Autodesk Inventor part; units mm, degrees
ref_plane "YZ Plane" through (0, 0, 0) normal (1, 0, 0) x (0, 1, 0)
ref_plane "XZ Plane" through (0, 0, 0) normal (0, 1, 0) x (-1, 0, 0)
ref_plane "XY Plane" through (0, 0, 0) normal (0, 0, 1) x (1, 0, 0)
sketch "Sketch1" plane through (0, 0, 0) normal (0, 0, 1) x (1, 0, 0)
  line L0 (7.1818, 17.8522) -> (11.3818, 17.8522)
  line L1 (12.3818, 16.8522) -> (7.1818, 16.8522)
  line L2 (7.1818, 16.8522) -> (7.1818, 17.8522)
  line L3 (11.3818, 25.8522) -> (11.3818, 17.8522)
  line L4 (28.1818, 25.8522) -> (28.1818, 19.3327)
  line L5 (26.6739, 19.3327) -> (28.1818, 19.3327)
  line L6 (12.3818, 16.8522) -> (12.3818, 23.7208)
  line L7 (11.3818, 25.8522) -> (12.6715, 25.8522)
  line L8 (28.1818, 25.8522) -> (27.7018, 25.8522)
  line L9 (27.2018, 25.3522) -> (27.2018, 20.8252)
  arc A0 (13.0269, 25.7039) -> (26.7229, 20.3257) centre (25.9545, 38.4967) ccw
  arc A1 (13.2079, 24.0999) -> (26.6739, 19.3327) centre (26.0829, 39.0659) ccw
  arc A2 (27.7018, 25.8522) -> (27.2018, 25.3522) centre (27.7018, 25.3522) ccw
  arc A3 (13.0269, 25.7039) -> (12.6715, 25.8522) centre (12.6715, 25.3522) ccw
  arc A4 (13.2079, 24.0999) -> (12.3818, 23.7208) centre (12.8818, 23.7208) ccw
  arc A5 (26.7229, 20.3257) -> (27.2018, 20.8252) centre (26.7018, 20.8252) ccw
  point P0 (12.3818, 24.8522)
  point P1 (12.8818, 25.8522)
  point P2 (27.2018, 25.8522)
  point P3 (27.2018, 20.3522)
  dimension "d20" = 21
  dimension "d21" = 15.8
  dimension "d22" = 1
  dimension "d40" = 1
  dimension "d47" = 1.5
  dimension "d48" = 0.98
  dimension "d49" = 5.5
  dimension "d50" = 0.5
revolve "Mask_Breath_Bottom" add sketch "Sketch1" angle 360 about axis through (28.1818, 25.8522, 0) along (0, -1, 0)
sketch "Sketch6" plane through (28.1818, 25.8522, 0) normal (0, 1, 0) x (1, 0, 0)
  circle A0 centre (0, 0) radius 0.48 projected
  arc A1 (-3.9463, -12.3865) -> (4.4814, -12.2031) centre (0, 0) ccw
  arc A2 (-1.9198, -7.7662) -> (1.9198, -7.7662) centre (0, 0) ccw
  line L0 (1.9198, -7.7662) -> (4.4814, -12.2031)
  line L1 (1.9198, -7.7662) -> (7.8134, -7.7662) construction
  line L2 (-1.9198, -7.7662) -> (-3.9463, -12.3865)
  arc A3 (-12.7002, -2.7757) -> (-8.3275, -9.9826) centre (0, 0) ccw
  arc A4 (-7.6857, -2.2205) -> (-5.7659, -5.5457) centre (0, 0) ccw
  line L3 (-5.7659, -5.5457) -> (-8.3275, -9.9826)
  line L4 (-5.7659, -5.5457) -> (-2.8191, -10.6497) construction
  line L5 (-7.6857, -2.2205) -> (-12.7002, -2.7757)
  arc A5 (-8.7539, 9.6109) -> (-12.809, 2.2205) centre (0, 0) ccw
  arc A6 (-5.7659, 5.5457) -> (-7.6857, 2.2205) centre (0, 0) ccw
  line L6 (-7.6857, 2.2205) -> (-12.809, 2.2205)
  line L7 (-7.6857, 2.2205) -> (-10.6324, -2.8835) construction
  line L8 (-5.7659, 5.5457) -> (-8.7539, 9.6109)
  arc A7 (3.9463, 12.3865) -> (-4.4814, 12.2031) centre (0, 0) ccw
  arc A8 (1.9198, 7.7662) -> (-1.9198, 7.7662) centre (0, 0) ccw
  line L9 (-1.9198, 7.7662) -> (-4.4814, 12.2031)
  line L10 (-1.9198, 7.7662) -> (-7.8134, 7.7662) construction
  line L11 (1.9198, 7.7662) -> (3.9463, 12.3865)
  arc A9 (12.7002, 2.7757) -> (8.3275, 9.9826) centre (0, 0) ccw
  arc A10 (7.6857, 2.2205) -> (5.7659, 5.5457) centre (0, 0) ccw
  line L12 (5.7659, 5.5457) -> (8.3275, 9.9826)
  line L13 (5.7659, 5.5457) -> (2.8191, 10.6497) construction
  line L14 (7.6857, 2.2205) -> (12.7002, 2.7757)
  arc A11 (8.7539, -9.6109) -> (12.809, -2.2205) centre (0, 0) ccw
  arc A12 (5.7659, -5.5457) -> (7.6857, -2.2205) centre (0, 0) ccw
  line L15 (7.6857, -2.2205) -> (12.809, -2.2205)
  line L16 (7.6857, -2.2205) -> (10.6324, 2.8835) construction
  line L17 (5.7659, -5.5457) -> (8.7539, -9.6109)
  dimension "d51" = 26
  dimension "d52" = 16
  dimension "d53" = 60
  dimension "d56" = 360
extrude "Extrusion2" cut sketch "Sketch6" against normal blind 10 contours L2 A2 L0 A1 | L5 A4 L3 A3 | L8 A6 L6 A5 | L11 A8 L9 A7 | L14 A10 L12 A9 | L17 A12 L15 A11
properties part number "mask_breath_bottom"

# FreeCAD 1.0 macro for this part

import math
import FreeCAD as App
import Part
import Sketcher
from FreeCAD import Vector
Q = App.Units.Quantity

doc = App.newDocument("Part")
body = doc.addObject("PartDesign::Body", "Body")

# Sketch on XY plane
sketch1 = body.newObject("Sketcher::SketchObject", "Sketch")
sketch1.AttachmentSupport = (doc.getObject("XY_Plane"), [""])
sketch1.MapMode = "FlatFace"
sketch1.addGeometry(Part.LineSegment(Vector(11.38, 17.85, 0), Vector(7.18, 17.85, 0)), False)
sketch1.addGeometry(Part.LineSegment(Vector(7.18, 17.85, 0), Vector(7.18, 16.85, 0)), False)
sketch1.addGeometry(Part.LineSegment(Vector(7.18, 16.85, 0), Vector(12.38, 16.85, 0)), False)
sketch1.addGeometry(Part.LineSegment(Vector(12.38, 16.85, 0), Vector(12.38, 23.72, 0)), False)
sketch1.addGeometry(Part.ArcOfCircle(Part.Circle(Vector(12.88, 23.72, 0), Vector(0, 0, 1), 0.5), math.radians(49), math.radians(180)), False)
sketch1.addGeometry(Part.ArcOfCircle(Part.Circle(Vector(26.08, 39.07, 0), Vector(0, 0, 1), 19.74), math.radians(-131), math.radians(-88)), False)
sketch1.addGeometry(Part.LineSegment(Vector(26.67, 19.33, 0), Vector(28.18, 19.33, 0)), False)
sketch1.addGeometry(Part.LineSegment(Vector(28.18, 19.33, 0), Vector(28.18, 25.85, 0)), False)
sketch1.addGeometry(Part.LineSegment(Vector(28.18, 25.85, 0), Vector(27.7, 25.85, 0)), False)
sketch1.addGeometry(Part.ArcOfCircle(Part.Circle(Vector(27.7, 25.35, 0), Vector(0, 0, 1), 0.5), math.radians(90), math.radians(180)), False)
sketch1.addGeometry(Part.LineSegment(Vector(27.2, 25.35, 0), Vector(27.2, 20.83, 0)), False)
sketch1.addGeometry(Part.ArcOfCircle(Part.Circle(Vector(26.7, 20.83, 0), Vector(0, 0, 1), 0.5), math.radians(-88), math.radians(0)), False)
sketch1.addGeometry(Part.ArcOfCircle(Part.Circle(Vector(25.95, 38.5, 0), Vector(0, 0, 1), 18.19), math.radians(-135), math.radians(-88)), False)
sketch1.addGeometry(Part.ArcOfCircle(Part.Circle(Vector(12.67, 25.35, 0), Vector(0, 0, 1), 0.5), math.radians(45), math.radians(90)), False)
sketch1.addGeometry(Part.LineSegment(Vector(12.67, 25.85, 0), Vector(11.38, 25.85, 0)), False)
sketch1.addGeometry(Part.LineSegment(Vector(11.38, 25.85, 0), Vector(11.38, 17.85, 0)), False)
sketch1.addGeometry(Part.LineSegment(Vector(28.18, 39.07, 0), Vector(28.18, 16.85, 0)), True)  # axis
sketch1.addConstraint(Sketcher.Constraint("Coincident", 0, 2, 1, 1))
sketch1.addConstraint(Sketcher.Constraint("Coincident", 1, 2, 2, 1))
sketch1.addConstraint(Sketcher.Constraint("Coincident", 2, 2, 3, 1))
sketch1.addConstraint(Sketcher.Constraint("Tangent", 3, 2, 4, 2))
sketch1.addConstraint(Sketcher.Constraint("Tangent", 4, 1, 5, 1))
sketch1.addConstraint(Sketcher.Constraint("Coincident", 5, 2, 6, 1))
sketch1.addConstraint(Sketcher.Constraint("Coincident", 6, 2, 7, 1))
sketch1.addConstraint(Sketcher.Constraint("Coincident", 7, 2, 8, 1))
sketch1.addConstraint(Sketcher.Constraint("Tangent", 8, 2, 9, 1))
sketch1.addConstraint(Sketcher.Constraint("Tangent", 9, 2, 10, 1))
sketch1.addConstraint(Sketcher.Constraint("Tangent", 10, 2, 11, 2))
sketch1.addConstraint(Sketcher.Constraint("Tangent", 11, 1, 12, 2))
sketch1.addConstraint(Sketcher.Constraint("Tangent", 12, 1, 13, 1))
sketch1.addConstraint(Sketcher.Constraint("Tangent", 13, 2, 14, 1))
sketch1.addConstraint(Sketcher.Constraint("Coincident", 14, 2, 15, 1))
sketch1.addConstraint(Sketcher.Constraint("Coincident", 15, 2, 0, 1))
sketch1.addConstraint(Sketcher.Constraint("Horizontal", 0))
sketch1.addConstraint(Sketcher.Constraint("Vertical", 1))
sketch1.addConstraint(Sketcher.Constraint("Horizontal", 2))
sketch1.addConstraint(Sketcher.Constraint("Vertical", 3))
sketch1.addConstraint(Sketcher.Constraint("Horizontal", 6))
sketch1.addConstraint(Sketcher.Constraint("Vertical", 7))
sketch1.addConstraint(Sketcher.Constraint("Horizontal", 8))
sketch1.addConstraint(Sketcher.Constraint("Vertical", 10))
sketch1.addConstraint(Sketcher.Constraint("Horizontal", 14))
sketch1.addConstraint(Sketcher.Constraint("Vertical", 15))
sketch1.addConstraint(Sketcher.Constraint("Vertical", 16))
sketch1.addConstraint(Sketcher.Constraint("Equal", 4, 9))
sketch1.addConstraint(Sketcher.Constraint("Equal", 9, 11))
sketch1.addConstraint(Sketcher.Constraint("Equal", 11, 13))
sketch1.addConstraint(Sketcher.Constraint("Horizontal", 9, 3, 13, 3))
sketch1.addConstraint(Sketcher.Constraint("Horizontal", 5, 3, 16, 1))
sketch1.addConstraint(Sketcher.Constraint("Horizontal", 2, 2, 16, 2))
sketch1.addConstraint(Sketcher.Constraint("Vertical", 7, 2, 16, 1))
sketch1.addConstraint(Sketcher.Constraint("Radius", 4, Q("0.5 mm")))
sketch1.addConstraint(Sketcher.Constraint("DistanceY", 1, 2, 1, 1, Q("1 mm")))
sketch1.addConstraint(Sketcher.Constraint("DistanceX", 14, 2, 3, 2, Q("1 mm")))
sketch1.addConstraint(Sketcher.Constraint("DistanceY", 15, 2, 15, 1, Q("8 mm")))
sketch1.addConstraint(Sketcher.Constraint("DistanceX", 9, 2, 7, 2, Q("0.98 mm")))
sketch1.addConstraint(Sketcher.Constraint("DistanceX", 0, 2, 0, 1, Q("4.2 mm")))
sketch1.addConstraint(Sketcher.Constraint("Radius", 5, Q("19.742 mm")))
sketch1.addConstraint(Sketcher.Constraint("DistanceY", -1, 1, 4, 1, Q("24.1 mm")))
sketch1.addConstraint(Sketcher.Constraint("Radius", 12, Q("18.1873 mm")))
sketch1.addConstraint(Sketcher.Constraint("DistanceX", 4, 3, 6, 2, Q("15.3 mm")))
sketch1.addConstraint(Sketcher.Constraint("DistanceX", 6, 1, 6, 2, Q("1.508 mm")))
sketch1.addConstraint(Sketcher.Constraint("DistanceY", 10, 2, 10, 1, Q("4.527 mm")))
sketch1.addConstraint(Sketcher.Constraint("DistanceX", 14, 2, 14, 1, Q("1.2897 mm")))
sketch1.addConstraint(Sketcher.Constraint("DistanceY", 3, 1, 3, 2, Q("6.8686 mm")))
sketch1.addConstraint(Sketcher.Constraint("DistanceY", 7, 1, 7, 2, Q("6.5195 mm")))
sketch1.addConstraint(Sketcher.Constraint("DistanceX", -1, 1, 5, 3, Q("26.083 mm")))
revolution = body.newObject("PartDesign::Revolution", "Revolution")
revolution.Profile = sketch1
revolution.ReferenceAxis = (sketch1, ["Axis0"])
revolution.Angle = 360

# Sketch on XZ plane
sketch2 = body.newObject("Sketcher::SketchObject", "Sketch001")
sketch2.AttachmentSupport = (doc.getObject("XZ_Plane"), [""])
sketch2.MapMode = "FlatFace"
sketch2.AttachmentOffset = App.Placement(Vector(0, 0, -25.8522), App.Rotation())
sketch2.addGeometry(Part.LineSegment(Vector(26.3, 7.8, 0), Vector(24.2, 12.4, 0)), False)
sketch2.addGeometry(Part.ArcOfCircle(Part.Circle(Vector(28.2, 0, 0), Vector(0, 0, 1), 13), math.radians(70), math.radians(108)), False)
sketch2.addGeometry(Part.LineSegment(Vector(32.7, 12.2, 0), Vector(30.1, 7.8, 0)), False)
sketch2.addGeometry(Part.ArcOfCircle(Part.Circle(Vector(28.2, 0, 0), Vector(0, 0, 1), 8), math.radians(76), math.radians(104)), False)
sketch2.addGeometry(Part.LineSegment(Vector(20.5, 2.2, 0), Vector(15.5, 2.8, 0)), False)
sketch2.addGeometry(Part.ArcOfCircle(Part.Circle(Vector(28.2, 0, 0), Vector(0, 0, 1), 13), math.radians(130), math.radians(168)), False)
sketch2.addGeometry(Part.LineSegment(Vector(19.9, 10, 0), Vector(22.4, 5.5, 0)), False)
sketch2.addGeometry(Part.ArcOfCircle(Part.Circle(Vector(28.2, 0, 0), Vector(0, 0, 1), 8), math.radians(136), math.radians(164)), False)
sketch2.addGeometry(Part.LineSegment(Vector(22.4, -5.5, 0), Vector(19.4, -9.6, 0)), False)
sketch2.addGeometry(Part.ArcOfCircle(Part.Circle(Vector(28.2, 0, 0), Vector(0, 0, 1), 13), math.radians(-170), math.radians(-132)), False)
sketch2.addGeometry(Part.LineSegment(Vector(15.4, -2.2, 0), Vector(20.5, -2.2, 0)), False)
sketch2.addGeometry(Part.ArcOfCircle(Part.Circle(Vector(28.2, 0, 0), Vector(0, 0, 1), 8), math.radians(-164), math.radians(-136)), False)
sketch2.addGeometry(Part.LineSegment(Vector(30.1, -7.8, 0), Vector(32.1, -12.4, 0)), False)
sketch2.addGeometry(Part.ArcOfCircle(Part.Circle(Vector(28.2, 0, 0), Vector(0, 0, 1), 13), math.radians(-110), math.radians(-72)), False)
sketch2.addGeometry(Part.LineSegment(Vector(23.7, -12.2, 0), Vector(26.3, -7.8, 0)), False)
sketch2.addGeometry(Part.ArcOfCircle(Part.Circle(Vector(28.2, 0, 0), Vector(0, 0, 1), 8), math.radians(-104), math.radians(-76)), False)
sketch2.addGeometry(Part.LineSegment(Vector(35.9, -2.2, 0), Vector(40.9, -2.8, 0)), False)
sketch2.addGeometry(Part.ArcOfCircle(Part.Circle(Vector(28.2, 0, 0), Vector(0, 0, 1), 13), math.radians(-50), math.radians(-12)), False)
sketch2.addGeometry(Part.LineSegment(Vector(36.5, -10, 0), Vector(33.9, -5.5, 0)), False)
sketch2.addGeometry(Part.ArcOfCircle(Part.Circle(Vector(28.2, 0, 0), Vector(0, 0, 1), 8), math.radians(-44), math.radians(-16)), False)
sketch2.addGeometry(Part.LineSegment(Vector(33.9, 5.5, 0), Vector(36.9, 9.6, 0)), False)
sketch2.addGeometry(Part.ArcOfCircle(Part.Circle(Vector(28.2, 0, 0), Vector(0, 0, 1), 13), math.radians(10), math.radians(48)), False)
sketch2.addGeometry(Part.LineSegment(Vector(41, 2.2, 0), Vector(35.9, 2.2, 0)), False)
sketch2.addGeometry(Part.ArcOfCircle(Part.Circle(Vector(28.2, 0, 0), Vector(0, 0, 1), 8), math.radians(16), math.radians(44)), False)
sketch2.addConstraint(Sketcher.Constraint("Coincident", 0, 2, 1, 2))
sketch2.addConstraint(Sketcher.Constraint("Coincident", 1, 1, 2, 1))
sketch2.addConstraint(Sketcher.Constraint("Coincident", 2, 2, 3, 1))
sketch2.addConstraint(Sketcher.Constraint("Coincident", 3, 2, 0, 1))
sketch2.addConstraint(Sketcher.Constraint("Coincident", 4, 2, 5, 2))
sketch2.addConstraint(Sketcher.Constraint("Coincident", 5, 1, 6, 1))
sketch2.addConstraint(Sketcher.Constraint("Coincident", 6, 2, 7, 1))
sketch2.addConstraint(Sketcher.Constraint("Coincident", 7, 2, 4, 1))
sketch2.addConstraint(Sketcher.Constraint("Coincident", 8, 2, 9, 2))
sketch2.addConstraint(Sketcher.Constraint("Coincident", 9, 1, 10, 1))
sketch2.addConstraint(Sketcher.Constraint("Coincident", 10, 2, 11, 1))
sketch2.addConstraint(Sketcher.Constraint("Coincident", 11, 2, 8, 1))
sketch2.addConstraint(Sketcher.Constraint("Coincident", 12, 2, 13, 2))
sketch2.addConstraint(Sketcher.Constraint("Coincident", 13, 1, 14, 1))
sketch2.addConstraint(Sketcher.Constraint("Coincident", 14, 2, 15, 1))
sketch2.addConstraint(Sketcher.Constraint("Coincident", 15, 2, 12, 1))
sketch2.addConstraint(Sketcher.Constraint("Coincident", 16, 2, 17, 2))
sketch2.addConstraint(Sketcher.Constraint("Coincident", 17, 1, 18, 1))
sketch2.addConstraint(Sketcher.Constraint("Coincident", 18, 2, 19, 1))
sketch2.addConstraint(Sketcher.Constraint("Coincident", 19, 2, 16, 1))
sketch2.addConstraint(Sketcher.Constraint("Coincident", 20, 2, 21, 2))
sketch2.addConstraint(Sketcher.Constraint("Coincident", 21, 1, 22, 1))
sketch2.addConstraint(Sketcher.Constraint("Coincident", 22, 2, 23, 1))
sketch2.addConstraint(Sketcher.Constraint("Coincident", 23, 2, 20, 1))
sketch2.addConstraint(Sketcher.Constraint("Horizontal", 10))
sketch2.addConstraint(Sketcher.Constraint("Horizontal", 22))
sketch2.addConstraint(Sketcher.Constraint("Coincident", 3, 3, 1, 3))
sketch2.addConstraint(Sketcher.Constraint("Coincident", 5, 3, 1, 3))
sketch2.addConstraint(Sketcher.Constraint("Coincident", 7, 3, 1, 3))
sketch2.addConstraint(Sketcher.Constraint("Coincident", 9, 3, 1, 3))
sketch2.addConstraint(Sketcher.Constraint("Coincident", 11, 3, 1, 3))
sketch2.addConstraint(Sketcher.Constraint("Coincident", 13, 3, 1, 3))
sketch2.addConstraint(Sketcher.Constraint("Coincident", 15, 3, 1, 3))
sketch2.addConstraint(Sketcher.Constraint("Coincident", 17, 3, 1, 3))
sketch2.addConstraint(Sketcher.Constraint("Coincident", 19, 3, 1, 3))
sketch2.addConstraint(Sketcher.Constraint("Coincident", 21, 3, 1, 3))
sketch2.addConstraint(Sketcher.Constraint("Coincident", 23, 3, 1, 3))
sketch2.addConstraint(Sketcher.Constraint("Equal", 1, 5))
sketch2.addConstraint(Sketcher.Constraint("Equal", 3, 7))
sketch2.addConstraint(Sketcher.Constraint("Equal", 5, 9))
sketch2.addConstraint(Sketcher.Constraint("Equal", 7, 11))
sketch2.addConstraint(Sketcher.Constraint("Equal", 9, 13))
sketch2.addConstraint(Sketcher.Constraint("Equal", 11, 15))
sketch2.addConstraint(Sketcher.Constraint("Equal", 13, 17))
sketch2.addConstraint(Sketcher.Constraint("Equal", 15, 19))
sketch2.addConstraint(Sketcher.Constraint("Equal", 17, 21))
sketch2.addConstraint(Sketcher.Constraint("Equal", 19, 23))
sketch2.addConstraint(Sketcher.Constraint("Symmetric", 7, 2, 10, 2, -1))
sketch2.addConstraint(Sketcher.Constraint("Parallel", 0, 12))
sketch2.addConstraint(Sketcher.Constraint("Parallel", 2, 14))
sketch2.addConstraint(Sketcher.Constraint("Parallel", 4, 16))
sketch2.addConstraint(Sketcher.Constraint("Parallel", 6, 18))
sketch2.addConstraint(Sketcher.Constraint("Parallel", 8, 20))
sketch2.addConstraint(Sketcher.Constraint("Horizontal", 2, 2, 3, 2))
sketch2.addConstraint(Sketcher.Constraint("Horizontal", 14, 2, 15, 2))
sketch2.addConstraint(Sketcher.Constraint("Horizontal", 11, 2, 18, 2))
sketch2.addConstraint(Sketcher.Constraint("Horizontal", 10, 2, 19, 2))
sketch2.addConstraint(Sketcher.Constraint("Horizontal", 7, 2, 21, 1))
sketch2.addConstraint(Sketcher.Constraint("Horizontal", 6, 2, 23, 2))
sketch2.addConstraint(Sketcher.Constraint("Vertical", 6, 2, 11, 2))
sketch2.addConstraint(Sketcher.Constraint("Vertical", 3, 2, 14, 2))
sketch2.addConstraint(Sketcher.Constraint("Equal", 0, 4))
sketch2.addConstraint(Sketcher.Constraint("Equal", 2, 6))
sketch2.addConstraint(Sketcher.Constraint("Equal", 4, 8))
sketch2.addConstraint(Sketcher.Constraint("Radius", 1, Q("13 mm")))
sketch2.addConstraint(Sketcher.Constraint("Radius", 3, Q("8 mm")))
sketch2.addConstraint(Sketcher.Constraint("Angle", 6, Q("-60.0004 deg")))
sketch2.addConstraint(Sketcher.Constraint("Angle", 14, Q("60.0004 deg")))
sketch2.addConstraint(Sketcher.Constraint("DistanceY", 4, 2, 6, 2, Q("2.77 mm")))
sketch2.addConstraint(Sketcher.Constraint("DistanceX", 10, 1, 10, 2, Q("5.1233 mm")))
sketch2.addConstraint(Sketcher.Constraint("DistanceY", -1, 1, 1, 1, Q("12.203 mm")))
sketch2.addConstraint(Sketcher.Constraint("DistanceX", -1, 1, 3, 2, Q("26.262 mm")))
pocket1 = body.newObject("PartDesign::Pocket", "Pocket")
pocket1.Profile = sketch2
pocket1.Length = 10
pocket1.Reversed = True

doc.recompute()
